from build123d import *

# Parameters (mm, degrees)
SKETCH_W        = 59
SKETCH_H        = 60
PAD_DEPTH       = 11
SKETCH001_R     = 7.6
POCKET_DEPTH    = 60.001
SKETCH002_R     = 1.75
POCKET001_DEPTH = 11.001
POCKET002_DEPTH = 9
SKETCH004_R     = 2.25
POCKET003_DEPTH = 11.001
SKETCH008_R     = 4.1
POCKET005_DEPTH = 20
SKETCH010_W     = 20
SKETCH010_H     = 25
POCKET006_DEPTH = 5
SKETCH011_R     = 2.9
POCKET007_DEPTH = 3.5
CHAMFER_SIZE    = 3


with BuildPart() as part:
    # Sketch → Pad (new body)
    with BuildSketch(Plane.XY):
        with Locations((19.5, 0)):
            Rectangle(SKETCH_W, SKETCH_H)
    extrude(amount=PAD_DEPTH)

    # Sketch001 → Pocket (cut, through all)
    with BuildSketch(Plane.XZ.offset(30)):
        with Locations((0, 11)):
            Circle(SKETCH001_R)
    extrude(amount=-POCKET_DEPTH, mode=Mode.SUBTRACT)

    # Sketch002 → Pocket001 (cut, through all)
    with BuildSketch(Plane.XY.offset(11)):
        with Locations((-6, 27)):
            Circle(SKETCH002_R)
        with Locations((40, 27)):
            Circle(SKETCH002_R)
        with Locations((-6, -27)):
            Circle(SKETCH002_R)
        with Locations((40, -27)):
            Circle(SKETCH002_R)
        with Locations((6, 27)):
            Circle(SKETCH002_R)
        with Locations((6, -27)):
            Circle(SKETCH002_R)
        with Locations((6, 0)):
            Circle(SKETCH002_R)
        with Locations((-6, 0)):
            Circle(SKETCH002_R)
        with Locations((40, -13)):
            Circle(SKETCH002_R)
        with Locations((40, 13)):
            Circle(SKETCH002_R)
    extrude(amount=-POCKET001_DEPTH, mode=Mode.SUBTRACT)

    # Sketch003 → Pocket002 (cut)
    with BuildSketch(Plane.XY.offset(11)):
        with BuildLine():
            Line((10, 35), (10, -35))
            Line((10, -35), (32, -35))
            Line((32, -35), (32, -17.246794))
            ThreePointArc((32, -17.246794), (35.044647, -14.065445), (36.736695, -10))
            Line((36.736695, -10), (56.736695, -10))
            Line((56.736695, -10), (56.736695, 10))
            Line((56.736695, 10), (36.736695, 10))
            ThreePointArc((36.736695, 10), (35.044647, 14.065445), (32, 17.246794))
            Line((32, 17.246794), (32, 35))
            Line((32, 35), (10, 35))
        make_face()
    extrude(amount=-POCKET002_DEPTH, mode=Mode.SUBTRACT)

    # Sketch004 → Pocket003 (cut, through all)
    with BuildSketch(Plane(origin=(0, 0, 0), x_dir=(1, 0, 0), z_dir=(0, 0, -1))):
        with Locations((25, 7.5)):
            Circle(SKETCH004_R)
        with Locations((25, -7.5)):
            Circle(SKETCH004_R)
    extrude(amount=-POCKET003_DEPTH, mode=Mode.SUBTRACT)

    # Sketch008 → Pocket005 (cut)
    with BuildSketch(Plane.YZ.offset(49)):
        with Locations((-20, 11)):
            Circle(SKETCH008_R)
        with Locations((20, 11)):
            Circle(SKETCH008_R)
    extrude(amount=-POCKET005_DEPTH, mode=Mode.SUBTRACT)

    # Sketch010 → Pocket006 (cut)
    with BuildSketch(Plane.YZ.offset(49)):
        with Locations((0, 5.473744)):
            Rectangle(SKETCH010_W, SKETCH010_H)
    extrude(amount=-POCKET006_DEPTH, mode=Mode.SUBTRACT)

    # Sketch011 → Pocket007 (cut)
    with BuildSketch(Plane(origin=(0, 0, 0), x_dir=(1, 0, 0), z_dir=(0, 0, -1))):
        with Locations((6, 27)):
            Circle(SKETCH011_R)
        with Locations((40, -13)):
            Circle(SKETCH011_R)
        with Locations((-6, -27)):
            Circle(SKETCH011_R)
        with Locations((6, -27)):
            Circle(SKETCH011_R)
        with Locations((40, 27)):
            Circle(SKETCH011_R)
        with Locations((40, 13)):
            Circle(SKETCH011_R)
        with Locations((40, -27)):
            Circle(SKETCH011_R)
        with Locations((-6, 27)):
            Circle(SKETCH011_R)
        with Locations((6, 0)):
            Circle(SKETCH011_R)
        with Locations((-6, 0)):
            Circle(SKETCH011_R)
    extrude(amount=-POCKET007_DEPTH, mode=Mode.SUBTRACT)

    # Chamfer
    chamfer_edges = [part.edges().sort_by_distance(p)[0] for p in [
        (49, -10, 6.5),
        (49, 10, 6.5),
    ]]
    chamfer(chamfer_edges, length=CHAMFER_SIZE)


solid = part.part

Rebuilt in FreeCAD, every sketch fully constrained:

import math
import FreeCAD as App
import Part
import Sketcher
from FreeCAD import Vector
Q = App.Units.Quantity


def edges_at(feature, points):
    """Names of the edges that pass closest to the given points."""
    edges = feature.Shape.Edges
    near = lambda p: min(range(len(edges)), key=lambda i: edges[i].distToShape(Part.Vertex(*p))[0])
    return sorted({f"Edge{near(p) + 1}" for p in points})


def add_polygon(sketch, points):
    """Adds a closed chain of lines whose ends are joined by coincident constraints."""
    first, n = sketch.GeometryCount, len(points)
    for a, b in zip(points, points[1:] + points[:1]):
        sketch.addGeometry(Part.LineSegment(App.Vector(*a, 0), App.Vector(*b, 0)), False)
    for i in range(n):
        sketch.addConstraint(Sketcher.Constraint("Coincident", first + i, 2, first + (i + 1) % n, 1))

doc = App.newDocument("Part")
body = doc.addObject("PartDesign::Body", "Body")

sketch1 = body.newObject("Sketcher::SketchObject", "Sketch")
sketch1.AttachmentSupport = (doc.getObject("XY_Plane"), [""])
sketch1.MapMode = "FlatFace"
add_polygon(sketch1, [(-10, 30), (-10, -30), (49, -30), (49, 30)])
sketch1.addConstraint(Sketcher.Constraint("Vertical", 0))
sketch1.addConstraint(Sketcher.Constraint("Horizontal", 1))
sketch1.addConstraint(Sketcher.Constraint("Vertical", 2))
sketch1.addConstraint(Sketcher.Constraint("Horizontal", 3))
sketch1.addConstraint(Sketcher.Constraint("DistanceX", 1, 1, 1, 2, Q("59 mm")))
sketch1.addConstraint(Sketcher.Constraint("DistanceY", 0, 2, 0, 1, Q("60 mm")))
sketch1.addConstraint(Sketcher.Constraint("DistanceX", 0, 2, -1, 1, Q("10 mm")))
sketch1.addConstraint(Sketcher.Constraint("DistanceY", 0, 2, -1, 1, Q("30 mm")))
pad1 = body.newObject("PartDesign::Pad", "Pad")
pad1.Profile = sketch1
pad1.Length = 11

sketch2 = body.newObject("Sketcher::SketchObject", "Sketch001")
sketch2.AttachmentSupport = (doc.getObject("XZ_Plane"), [""])
sketch2.MapMode = "FlatFace"
sketch2.AttachmentOffset = App.Placement(Vector(0, 0, 30), App.Rotation())
sketch2.addGeometry(Part.Circle(Vector(0, 11, 0), Vector(0, 0, 1), 8), False)
sketch2.addConstraint(Sketcher.Constraint("PointOnObject", 0, 3, -2))
sketch2.addConstraint(Sketcher.Constraint("Diameter", 0, Q("15.2 mm")))
sketch2.addConstraint(Sketcher.Constraint("DistanceY", -1, 1, 0, 3, Q("11 mm")))
pocket1 = body.newObject("PartDesign::Pocket", "Pocket")
pocket1.Profile = sketch2
pocket1.Type = "ThroughAll"

sketch3 = body.newObject("Sketcher::SketchObject", "Sketch002")
sketch3.AttachmentSupport = (doc.getObject("XY_Plane"), [""])
sketch3.MapMode = "FlatFace"
sketch3.AttachmentOffset = App.Placement(Vector(0, 0, 11), App.Rotation())
sketch3.addGeometry(Part.Circle(Vector(-6, 27, 0), Vector(0, 0, 1), 1.8), False)
sketch3.addGeometry(Part.Circle(Vector(40, 27, 0), Vector(0, 0, 1), 1.8), False)
sketch3.addGeometry(Part.Circle(Vector(-6, -27, 0), Vector(0, 0, 1), 1.8), False)
sketch3.addGeometry(Part.Circle(Vector(40, -27, 0), Vector(0, 0, 1), 1.8), False)
sketch3.addGeometry(Part.Circle(Vector(6, 27, 0), Vector(0, 0, 1), 1.8), False)
sketch3.addGeometry(Part.Circle(Vector(6, -27, 0), Vector(0, 0, 1), 1.8), False)
sketch3.addGeometry(Part.Circle(Vector(6, 0, 0), Vector(0, 0, 1), 1.8), False)
sketch3.addGeometry(Part.Circle(Vector(-6, 0, 0), Vector(0, 0, 1), 1.8), False)
sketch3.addGeometry(Part.Circle(Vector(40, -13, 0), Vector(0, 0, 1), 1.8), False)
sketch3.addGeometry(Part.Circle(Vector(40, 13, 0), Vector(0, 0, 1), 1.8), False)
sketch3.addConstraint(Sketcher.Constraint("Equal", 0, 1))
sketch3.addConstraint(Sketcher.Constraint("Equal", 1, 2))
sketch3.addConstraint(Sketcher.Constraint("Equal", 2, 3))
sketch3.addConstraint(Sketcher.Constraint("Equal", 3, 4))
sketch3.addConstraint(Sketcher.Constraint("Equal", 4, 5))
sketch3.addConstraint(Sketcher.Constraint("Equal", 5, 6))
sketch3.addConstraint(Sketcher.Constraint("Equal", 6, 7))
sketch3.addConstraint(Sketcher.Constraint("Equal", 7, 8))
sketch3.addConstraint(Sketcher.Constraint("Equal", 8, 9))
sketch3.addConstraint(Sketcher.Constraint("Symmetric", 2, 3, 4, 3, -1, 1))
sketch3.addConstraint(Sketcher.Constraint("Symmetric", 0, 3, 5, 3, -1, 1))
sketch3.addConstraint(Sketcher.Constraint("Symmetric", 6, 3, 7, 3, -1, 1))
sketch3.addConstraint(Sketcher.Constraint("Symmetric", 0, 3, 4, 3, -2))
sketch3.addConstraint(Sketcher.Constraint("Symmetric", 1, 3, 3, 3, -1))
sketch3.addConstraint(Sketcher.Constraint("Symmetric", 8, 3, 9, 3, -1))
sketch3.addConstraint(Sketcher.Constraint("PointOnObject", 6, 3, -1))
sketch3.addConstraint(Sketcher.Constraint("Horizontal", 0, 3, 1, 3))
sketch3.addConstraint(Sketcher.Constraint("Vertical", 5, 3, 6, 3))
sketch3.addConstraint(Sketcher.Constraint("Vertical", 3, 3, 8, 3))
sketch3.addConstraint(Sketcher.Constraint("Diameter", 0, Q("3.5 mm")))
sketch3.addConstraint(Sketcher.Constraint("DistanceX", 0, 3, -1, 1, Q("6 mm")))
sketch3.addConstraint(Sketcher.Constraint("DistanceY", -1, 1, 0, 3, Q("27 mm")))
sketch3.addConstraint(Sketcher.Constraint("DistanceX", -1, 1, 1, 3, Q("40 mm")))
sketch3.addConstraint(Sketcher.Constraint("DistanceY", 8, 3, -1, 1, Q("13 mm")))
pocket2 = body.newObject("PartDesign::Pocket", "Pocket001")
pocket2.Profile = sketch3
pocket2.Type = "ThroughAll"

sketch4 = body.newObject("Sketcher::SketchObject", "Sketch003")
sketch4.AttachmentSupport = (doc.getObject("XY_Plane"), [""])
sketch4.MapMode = "FlatFace"
sketch4.AttachmentOffset = App.Placement(Vector(0, 0, 11), App.Rotation())
sketch4.addGeometry(Part.LineSegment(Vector(10, 35, 0), Vector(10, -35, 0)), False)
sketch4.addGeometry(Part.LineSegment(Vector(10, -35, 0), Vector(32, -35, 0)), False)
sketch4.addGeometry(Part.LineSegment(Vector(32, -35, 0), Vector(32, -17, 0)), False)
sketch4.addGeometry(Part.ArcOfCircle(Part.Circle(Vector(25, -7, 0), Vector(0, 0, 1), 12), math.radians(-54), math.radians(-12)), False)
sketch4.addGeometry(Part.LineSegment(Vector(37, -10, 0), Vector(57, -10, 0)), False)
sketch4.addGeometry(Part.LineSegment(Vector(57, -10, 0), Vector(57, 10, 0)), False)
sketch4.addGeometry(Part.LineSegment(Vector(57, 10, 0), Vector(37, 10, 0)), False)
sketch4.addGeometry(Part.ArcOfCircle(Part.Circle(Vector(25, 7, 0), Vector(0, 0, 1), 12), math.radians(12), math.radians(54)), False)
sketch4.addGeometry(Part.LineSegment(Vector(32, 17, 0), Vector(32, 35, 0)), False)
sketch4.addGeometry(Part.LineSegment(Vector(32, 35, 0), Vector(10, 35, 0)), False)
sketch4.addConstraint(Sketcher.Constraint("Coincident", 0, 2, 1, 1))
sketch4.addConstraint(Sketcher.Constraint("Coincident", 1, 2, 2, 1))
sketch4.addConstraint(Sketcher.Constraint("Coincident", 2, 2, 3, 1))
sketch4.addConstraint(Sketcher.Constraint("Coincident", 3, 2, 4, 1))
sketch4.addConstraint(Sketcher.Constraint("Coincident", 4, 2, 5, 1))
sketch4.addConstraint(Sketcher.Constraint("Coincident", 5, 2, 6, 1))
sketch4.addConstraint(Sketcher.Constraint("Coincident", 6, 2, 7, 1))
sketch4.addConstraint(Sketcher.Constraint("Coincident", 7, 2, 8, 1))
sketch4.addConstraint(Sketcher.Constraint("Coincident", 8, 2, 9, 1))
sketch4.addConstraint(Sketcher.Constraint("Coincident", 9, 2, 0, 1))
sketch4.addConstraint(Sketcher.Constraint("Vertical", 0))
sketch4.addConstraint(Sketcher.Constraint("Horizontal", 1))
sketch4.addConstraint(Sketcher.Constraint("Vertical", 2))
sketch4.addConstraint(Sketcher.Constraint("Horizontal", 4))
sketch4.addConstraint(Sketcher.Constraint("Vertical", 5))
sketch4.addConstraint(Sketcher.Constraint("Horizontal", 6))
sketch4.addConstraint(Sketcher.Constraint("Vertical", 8))
sketch4.addConstraint(Sketcher.Constraint("Horizontal", 9))
sketch4.addConstraint(Sketcher.Constraint("Equal", 3, 7))
sketch4.addConstraint(Sketcher.Constraint("Symmetric", 3, 3, 7, 3, -1))
sketch4.addConstraint(Sketcher.Constraint("Symmetric", 1, 2, 8, 2, -1))
sketch4.addConstraint(Sketcher.Constraint("Vertical", 3, 2, 6, 2))
sketch4.addConstraint(Sketcher.Constraint("Equal", 6, 5))
sketch4.addConstraint(Sketcher.Constraint("Radius", 3, Q("12 mm")))
sketch4.addConstraint(Sketcher.Constraint("DistanceX", 1, 1, 1, 2, Q("22 mm")))
sketch4.addConstraint(Sketcher.Constraint("DistanceX", 4, 1, 4, 2, Q("20 mm")))
sketch4.addConstraint(Sketcher.Constraint("DistanceY", 0, 2, 0, 1, Q("70 mm")))
sketch4.addConstraint(Sketcher.Constraint("DistanceX", -1, 1, 3, 3, Q("25.000001 mm")))
sketch4.addConstraint(Sketcher.Constraint("DistanceX", -1, 1, 0, 2, Q("10 mm")))
sketch4.addConstraint(Sketcher.Constraint("DistanceY", 3, 3, 7, 3, Q("14.999998 mm")))
pocket3 = body.newObject("PartDesign::Pocket", "Pocket002")
pocket3.Profile = sketch4
pocket3.Length = 9

sketch5 = body.newObject("Sketcher::SketchObject", "Sketch004")
sketch5.AttachmentSupport = (doc.getObject("XY_Plane"), [""])
sketch5.MapMode = "FlatFace"
sketch5.addGeometry(Part.Circle(Vector(25, -7.5, 0), Vector(0, 0, 1), 2.2), False)
sketch5.addGeometry(Part.Circle(Vector(25, 7.5, 0), Vector(0, 0, 1), 2.2), False)
sketch5.addConstraint(Sketcher.Constraint("Equal", 0, 1))
sketch5.addConstraint(Sketcher.Constraint("Symmetric", 0, 3, 1, 3, -1))
sketch5.addConstraint(Sketcher.Constraint("Diameter", 0, Q("4.5 mm")))
sketch5.addConstraint(Sketcher.Constraint("DistanceX", -1, 1, 0, 3, Q("25 mm")))
sketch5.addConstraint(Sketcher.Constraint("DistanceY", 0, 3, 1, 3, Q("15 mm")))
pocket4 = body.newObject("PartDesign::Pocket", "Pocket003")
pocket4.Profile = sketch5
pocket4.Type = "ThroughAll"
pocket4.Reversed = True

sketch6 = body.newObject("Sketcher::SketchObject", "Sketch005")
sketch6.AttachmentSupport = (doc.getObject("YZ_Plane"), [""])
sketch6.MapMode = "FlatFace"
sketch6.AttachmentOffset = App.Placement(Vector(0, 0, 49), App.Rotation())
sketch6.addGeometry(Part.Circle(Vector(-20, 11, 0), Vector(0, 0, 1), 4.1), False)
sketch6.addGeometry(Part.Circle(Vector(20, 11, 0), Vector(0, 0, 1), 4.1), False)
sketch6.addConstraint(Sketcher.Constraint("Equal", 0, 1))
sketch6.addConstraint(Sketcher.Constraint("Symmetric", 0, 3, 1, 3, -2))
sketch6.addConstraint(Sketcher.Constraint("Diameter", 0, Q("8.2 mm")))
sketch6.addConstraint(Sketcher.Constraint("DistanceX", 0, 3, -1, 1, Q("20 mm")))
sketch6.addConstraint(Sketcher.Constraint("DistanceY", -1, 1, 0, 3, Q("11 mm")))
pocket5 = body.newObject("PartDesign::Pocket", "Pocket004")
pocket5.Profile = sketch6
pocket5.Length = 20

sketch7 = body.newObject("Sketcher::SketchObject", "Sketch006")
sketch7.AttachmentSupport = (doc.getObject("YZ_Plane"), [""])
sketch7.MapMode = "FlatFace"
sketch7.AttachmentOffset = App.Placement(Vector(0, 0, 49), App.Rotation())
add_polygon(sketch7, [(-10, 18), (-10, -7), (10, -7), (10, 18)])
sketch7.addConstraint(Sketcher.Constraint("Vertical", 0))
sketch7.addConstraint(Sketcher.Constraint("Horizontal", 1))
sketch7.addConstraint(Sketcher.Constraint("Vertical", 2))
sketch7.addConstraint(Sketcher.Constraint("Horizontal", 3))
sketch7.addConstraint(Sketcher.Constraint("DistanceX", 1, 1, 1, 2, Q("20 mm")))
sketch7.addConstraint(Sketcher.Constraint("DistanceY", 0, 2, 0, 1, Q("25 mm")))
sketch7.addConstraint(Sketcher.Constraint("DistanceX", 0, 2, -1, 1, Q("10 mm")))
sketch7.addConstraint(Sketcher.Constraint("DistanceY", 0, 2, -1, 1, Q("7.026256 mm")))
pocket6 = body.newObject("PartDesign::Pocket", "Pocket005")
pocket6.Profile = sketch7
pocket6.Length = 5

sketch8 = body.newObject("Sketcher::SketchObject", "Sketch007")
sketch8.AttachmentSupport = (doc.getObject("XY_Plane"), [""])
sketch8.MapMode = "FlatFace"
sketch8.addGeometry(Part.Circle(Vector(6, -27, 0), Vector(0, 0, 1), 2.9), False)
sketch8.addGeometry(Part.Circle(Vector(40, 13, 0), Vector(0, 0, 1), 2.9), False)
sketch8.addGeometry(Part.Circle(Vector(-6, 27, 0), Vector(0, 0, 1), 2.9), False)
sketch8.addGeometry(Part.Circle(Vector(6, 27, 0), Vector(0, 0, 1), 2.9), False)
sketch8.addGeometry(Part.Circle(Vector(40, -27, 0), Vector(0, 0, 1), 2.9), False)
sketch8.addGeometry(Part.Circle(Vector(40, -13, 0), Vector(0, 0, 1), 2.9), False)
sketch8.addGeometry(Part.Circle(Vector(40, 27, 0), Vector(0, 0, 1), 2.9), False)
sketch8.addGeometry(Part.Circle(Vector(-6, -27, 0), Vector(0, 0, 1), 2.9), False)
sketch8.addGeometry(Part.Circle(Vector(6, 0, 0), Vector(0, 0, 1), 2.9), False)
sketch8.addGeometry(Part.Circle(Vector(-6, 0, 0), Vector(0, 0, 1), 2.9), False)
sketch8.addConstraint(Sketcher.Constraint("Equal", 0, 1))
sketch8.addConstraint(Sketcher.Constraint("Equal", 1, 2))
sketch8.addConstraint(Sketcher.Constraint("Equal", 2, 3))
sketch8.addConstraint(Sketcher.Constraint("Equal", 3, 4))
sketch8.addConstraint(Sketcher.Constraint("Equal", 4, 5))
sketch8.addConstraint(Sketcher.Constraint("Equal", 5, 6))
sketch8.addConstraint(Sketcher.Constraint("Equal", 6, 7))
sketch8.addConstraint(Sketcher.Constraint("Equal", 7, 8))
sketch8.addConstraint(Sketcher.Constraint("Equal", 8, 9))
sketch8.addConstraint(Sketcher.Constraint("Symmetric", 0, 3, 2, 3, -1, 1))
sketch8.addConstraint(Sketcher.Constraint("Symmetric", 3, 3, 7, 3, -1, 1))
sketch8.addConstraint(Sketcher.Constraint("Symmetric", 8, 3, 9, 3, -1, 1))
sketch8.addConstraint(Sketcher.Constraint("Symmetric", 2, 3, 3, 3, -2))
sketch8.addConstraint(Sketcher.Constraint("Symmetric", 1, 3, 5, 3, -1))
sketch8.addConstraint(Sketcher.Constraint("Symmetric", 4, 3, 6, 3, -1))
sketch8.addConstraint(Sketcher.Constraint("PointOnObject", 8, 3, -1))
sketch8.addConstraint(Sketcher.Constraint("Horizontal", 0, 3, 4, 3))
sketch8.addConstraint(Sketcher.Constraint("Vertical", 1, 3, 4, 3))
sketch8.addConstraint(Sketcher.Constraint("Vertical", 3, 3, 8, 3))
sketch8.addConstraint(Sketcher.Constraint("Diameter", 0, Q("5.8 mm")))
sketch8.addConstraint(Sketcher.Constraint("DistanceX", -1, 1, 0, 3, Q("6 mm")))
sketch8.addConstraint(Sketcher.Constraint("DistanceY", 0, 3, -1, 1, Q("27 mm")))
sketch8.addConstraint(Sketcher.Constraint("DistanceX", -1, 1, 1, 3, Q("40 mm")))
sketch8.addConstraint(Sketcher.Constraint("DistanceY", -1, 1, 1, 3, Q("13 mm")))
pocket7 = body.newObject("PartDesign::Pocket", "Pocket006")
pocket7.Profile = sketch8
pocket7.Length = 3.5
pocket7.Reversed = True
doc.recompute()

chamfer = body.newObject("PartDesign::Chamfer", "Chamfer")
chamfer.Base = (pocket7, edges_at(pocket7, [(49, -10, 5.5), (49, 10, 5.5)]))
chamfer.Size = 3

doc.recompute()
